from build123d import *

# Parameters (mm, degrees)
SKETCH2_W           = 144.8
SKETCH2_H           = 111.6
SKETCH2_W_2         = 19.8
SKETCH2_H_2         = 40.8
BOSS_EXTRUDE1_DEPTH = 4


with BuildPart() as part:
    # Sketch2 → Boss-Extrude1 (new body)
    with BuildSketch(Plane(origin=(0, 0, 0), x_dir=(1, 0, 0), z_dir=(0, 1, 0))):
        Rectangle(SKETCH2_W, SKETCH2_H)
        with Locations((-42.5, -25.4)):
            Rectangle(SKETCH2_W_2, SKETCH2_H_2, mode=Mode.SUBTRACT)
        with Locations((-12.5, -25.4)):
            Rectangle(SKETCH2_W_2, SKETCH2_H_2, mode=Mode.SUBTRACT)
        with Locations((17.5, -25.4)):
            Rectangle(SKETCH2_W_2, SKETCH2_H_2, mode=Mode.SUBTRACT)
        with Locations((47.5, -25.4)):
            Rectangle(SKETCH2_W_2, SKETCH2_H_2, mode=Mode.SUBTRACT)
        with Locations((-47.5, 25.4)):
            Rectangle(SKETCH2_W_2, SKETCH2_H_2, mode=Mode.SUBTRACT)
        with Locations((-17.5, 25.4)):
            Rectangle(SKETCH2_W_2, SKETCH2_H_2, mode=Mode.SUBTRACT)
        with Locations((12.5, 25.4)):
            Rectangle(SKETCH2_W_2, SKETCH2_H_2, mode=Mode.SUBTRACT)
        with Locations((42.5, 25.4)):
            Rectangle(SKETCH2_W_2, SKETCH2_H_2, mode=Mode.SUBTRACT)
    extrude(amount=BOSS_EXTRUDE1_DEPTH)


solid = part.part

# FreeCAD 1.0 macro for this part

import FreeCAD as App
import Part
import Sketcher
Q = App.Units.Quantity


def add_polygon(sketch, points):
    """Adds a closed chain of lines whose ends are joined by coincident constraints."""
    first, n = sketch.GeometryCount, len(points)
    for a, b in zip(points, points[1:] + points[:1]):
        sketch.addGeometry(Part.LineSegment(App.Vector(*a, 0), App.Vector(*b, 0)), False)
    for i in range(n):
        sketch.addConstraint(Sketcher.Constraint("Coincident", first + i, 2, first + (i + 1) % n, 1))

doc = App.newDocument("Part")
body = doc.addObject("PartDesign::Body", "Body")

sketch1 = doc.addObject("Sketcher::SketchObject", "Sketch")
body.addObject(sketch1)
sketch1.AttachmentSupport = (doc.XZ_Plane, [""])
sketch1.MapMode = "FlatFace"
add_polygon(sketch1, [(-72, -56), (-72, 56), (72, 56), (72, -56)])
add_polygon(sketch1, [(-33, 46), (-52, 46), (-52, 5), (-33, 5)])
add_polygon(sketch1, [(-3, 46), (-22, 46), (-22, 5), (-3, 5)])
add_polygon(sketch1, [(27, 46), (8, 46), (8, 5), (27, 5)])
add_polygon(sketch1, [(57, 46), (38, 46), (38, 5), (57, 5)])
add_polygon(sketch1, [(-38, -5), (-57, -5), (-57, -46), (-38, -46)])
add_polygon(sketch1, [(-8, -5), (-27, -5), (-27, -46), (-8, -46)])
add_polygon(sketch1, [(22, -5), (3, -5), (3, -46), (22, -46)])
add_polygon(sketch1, [(52, -5), (33, -5), (33, -46), (52, -46)])
sketch1.addConstraint([
    Sketcher.Constraint("Vertical", 0),
    Sketcher.Constraint("Horizontal", 1),
    Sketcher.Constraint("Vertical", 2),
    Sketcher.Constraint("Horizontal", 3),
    Sketcher.Constraint("Horizontal", 4),
    Sketcher.Constraint("Vertical", 5),
    Sketcher.Constraint("Horizontal", 6),
    Sketcher.Constraint("Vertical", 7),
    Sketcher.Constraint("Horizontal", 8),
    Sketcher.Constraint("Vertical", 9),
    Sketcher.Constraint("Horizontal", 10),
    Sketcher.Constraint("Vertical", 11),
    Sketcher.Constraint("Horizontal", 12),
    Sketcher.Constraint("Vertical", 13),
    Sketcher.Constraint("Horizontal", 14),
    Sketcher.Constraint("Vertical", 15),
    Sketcher.Constraint("Horizontal", 16),
    Sketcher.Constraint("Vertical", 17),
    Sketcher.Constraint("Horizontal", 18),
    Sketcher.Constraint("Vertical", 19),
    Sketcher.Constraint("Horizontal", 20),
    Sketcher.Constraint("Vertical", 21),
    Sketcher.Constraint("Horizontal", 22),
    Sketcher.Constraint("Vertical", 23),
    Sketcher.Constraint("Horizontal", 24),
    Sketcher.Constraint("Vertical", 25),
    Sketcher.Constraint("Horizontal", 26),
    Sketcher.Constraint("Vertical", 27),
    Sketcher.Constraint("Horizontal", 28),
    Sketcher.Constraint("Vertical", 29),
    Sketcher.Constraint("Horizontal", 30),
    Sketcher.Constraint("Vertical", 31),
    Sketcher.Constraint("Horizontal", 32),
    Sketcher.Constraint("Vertical", 33),
    Sketcher.Constraint("Horizontal", 34),
    Sketcher.Constraint("Vertical", 35),
    Sketcher.Constraint("Symmetric", 0, 2, 2, 2, -1, 1),
    Sketcher.Constraint("Symmetric", 18, 2, 20, 2, -1, 1),
    Sketcher.Constraint("Symmetric", 16, 2, 22, 2, -1, 1),
    Sketcher.Constraint("Symmetric", 14, 2, 24, 2, -1, 1),
    Sketcher.Constraint("Symmetric", 12, 2, 26, 2, -1, 1),
    Sketcher.Constraint("Symmetric", 10, 2, 28, 2, -1, 1),
    Sketcher.Constraint("Symmetric", 8, 2, 30, 2, -1, 1),
    Sketcher.Constraint("Symmetric", 6, 2, 32, 2, -1, 1),
    Sketcher.Constraint("Symmetric", 4, 2, 34, 2, -1, 1),
    Sketcher.Constraint("Horizontal", 7, 2, 8, 2),
    Sketcher.Constraint("Horizontal", 6, 2, 9, 2),
    Sketcher.Constraint("Horizontal", 11, 2, 12, 2),
    Sketcher.Constraint("Horizontal", 10, 2, 13, 2),
    Sketcher.Constraint("Horizontal", 15, 2, 16, 2),
    Sketcher.Constraint("Horizontal", 14, 2, 17, 2),
    Sketcher.Constraint("Equal", 6, 8),
    Sketcher.Constraint("Equal", 10, 12),
    Sketcher.Constraint("Equal", 14, 16),
    Sketcher.Constraint("DistanceX", 1, 1, 1, 2, Q("144.8 mm")),
    Sketcher.Constraint("DistanceX", 4, 2, 4, 1, Q("19.8 mm")),
    Sketcher.Constraint("DistanceY", 0, 1, 0, 2, Q("111.6 mm")),
    Sketcher.Constraint("DistanceY", 5, 2, 5, 1, Q("40.8 mm")),
    Sketcher.Constraint("DistanceY", -1, 1, 5, 2, Q("5 mm")),
    Sketcher.Constraint("DistanceX", 0, 2, 4, 2, Q("20 mm")),
    Sketcher.Constraint("DistanceX", 4, 2, 8, 2, Q("30 mm")),
    Sketcher.Constraint("DistanceX", 8, 2, 12, 2, Q("30 mm")),
    Sketcher.Constraint("DistanceX", 12, 2, 16, 2, Q("30 mm")),
])
pad1 = doc.addObject("PartDesign::Pad", "Pad")
body.addObject(pad1)
pad1.Profile = sketch1
pad1.Length = 4
pad1.Reversed = True

doc.recompute()
